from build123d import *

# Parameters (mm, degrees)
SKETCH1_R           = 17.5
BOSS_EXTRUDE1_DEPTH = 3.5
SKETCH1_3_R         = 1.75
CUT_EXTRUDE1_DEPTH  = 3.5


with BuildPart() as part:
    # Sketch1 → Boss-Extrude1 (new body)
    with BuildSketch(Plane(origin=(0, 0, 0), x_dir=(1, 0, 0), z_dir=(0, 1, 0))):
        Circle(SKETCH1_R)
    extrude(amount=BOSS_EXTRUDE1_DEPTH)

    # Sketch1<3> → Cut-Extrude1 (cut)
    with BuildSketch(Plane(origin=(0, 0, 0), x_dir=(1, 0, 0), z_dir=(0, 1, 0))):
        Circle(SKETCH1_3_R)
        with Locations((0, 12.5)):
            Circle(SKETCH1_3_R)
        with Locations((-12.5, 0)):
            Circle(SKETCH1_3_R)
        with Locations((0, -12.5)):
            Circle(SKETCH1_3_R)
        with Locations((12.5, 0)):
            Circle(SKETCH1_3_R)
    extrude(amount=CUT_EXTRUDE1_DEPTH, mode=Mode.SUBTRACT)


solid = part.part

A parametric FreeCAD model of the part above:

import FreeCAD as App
import Part
import Sketcher
from FreeCAD import Vector

doc = App.newDocument("Part")
body = doc.addObject("PartDesign::Body", "Body")

# Sketch on XZ plane
sketch1 = body.newObject("Sketcher::SketchObject", "Sketch")
sketch1.AttachmentSupport = (doc.getObject("XZ_Plane"), [""])
sketch1.MapMode = "FlatFace"
sketch1.addGeometry(Part.Circle(Vector(0, 0, 0), Vector(0, 0, 1), 18), False)
sketch1.addConstraint([
    Sketcher.Constraint("Coincident", 0, 3, -1, 1),
    Sketcher.Constraint("Diameter", 0, 35.0),
])
pad1 = body.newObject("PartDesign::Pad", "Pad")
pad1.Profile = sketch1
pad1.Length = 3.5
pad1.Reversed = True

# Sketch on XZ plane
sketch2 = body.newObject("Sketcher::SketchObject", "Sketch001")
sketch2.AttachmentSupport = (doc.getObject("XZ_Plane"), [""])
sketch2.MapMode = "FlatFace"
sketch2.addGeometry([
    Part.Circle(Vector(0, 0, 0), Vector(0, 0, 1), 1.8),  # 0
    Part.Circle(Vector(0, -12.5, 0), Vector(0, 0, 1), 1.8),  # 1
    Part.Circle(Vector(-12.5, 0, 0), Vector(0, 0, 1), 1.8),  # 2
    Part.Circle(Vector(0, 12.5, 0), Vector(0, 0, 1), 1.8),  # 3
    Part.Circle(Vector(12.5, 0, 0), Vector(0, 0, 1), 1.8),  # 4
], False)
sketch2.addConstraint([
    Sketcher.Constraint("Coincident", 0, 3, -1, 1),
    Sketcher.Constraint("Equal", 0, 1),
    Sketcher.Constraint("Equal", 1, 2),
    Sketcher.Constraint("Equal", 2, 3),
    Sketcher.Constraint("Equal", 3, 4),
    Sketcher.Constraint("Symmetric", 1, 3, 3, 3, -1, 1),
    Sketcher.Constraint("Symmetric", 2, 3, 4, 3, -1, 1),
    Sketcher.Constraint("PointOnObject", 1, 3, -2),
    Sketcher.Constraint("PointOnObject", 2, 3, -1),
    Sketcher.Constraint("Diameter", 0, 3.5),
    Sketcher.Constraint("DistanceY", 1, 3, 3, 3, 25.0),
    Sketcher.Constraint("DistanceX", 2, 3, 4, 3, 25.0),
])
pocket1 = body.newObject("PartDesign::Pocket", "Pocket")
pocket1.Profile = sketch2
pocket1.Length = 3.5

doc.recompute()
